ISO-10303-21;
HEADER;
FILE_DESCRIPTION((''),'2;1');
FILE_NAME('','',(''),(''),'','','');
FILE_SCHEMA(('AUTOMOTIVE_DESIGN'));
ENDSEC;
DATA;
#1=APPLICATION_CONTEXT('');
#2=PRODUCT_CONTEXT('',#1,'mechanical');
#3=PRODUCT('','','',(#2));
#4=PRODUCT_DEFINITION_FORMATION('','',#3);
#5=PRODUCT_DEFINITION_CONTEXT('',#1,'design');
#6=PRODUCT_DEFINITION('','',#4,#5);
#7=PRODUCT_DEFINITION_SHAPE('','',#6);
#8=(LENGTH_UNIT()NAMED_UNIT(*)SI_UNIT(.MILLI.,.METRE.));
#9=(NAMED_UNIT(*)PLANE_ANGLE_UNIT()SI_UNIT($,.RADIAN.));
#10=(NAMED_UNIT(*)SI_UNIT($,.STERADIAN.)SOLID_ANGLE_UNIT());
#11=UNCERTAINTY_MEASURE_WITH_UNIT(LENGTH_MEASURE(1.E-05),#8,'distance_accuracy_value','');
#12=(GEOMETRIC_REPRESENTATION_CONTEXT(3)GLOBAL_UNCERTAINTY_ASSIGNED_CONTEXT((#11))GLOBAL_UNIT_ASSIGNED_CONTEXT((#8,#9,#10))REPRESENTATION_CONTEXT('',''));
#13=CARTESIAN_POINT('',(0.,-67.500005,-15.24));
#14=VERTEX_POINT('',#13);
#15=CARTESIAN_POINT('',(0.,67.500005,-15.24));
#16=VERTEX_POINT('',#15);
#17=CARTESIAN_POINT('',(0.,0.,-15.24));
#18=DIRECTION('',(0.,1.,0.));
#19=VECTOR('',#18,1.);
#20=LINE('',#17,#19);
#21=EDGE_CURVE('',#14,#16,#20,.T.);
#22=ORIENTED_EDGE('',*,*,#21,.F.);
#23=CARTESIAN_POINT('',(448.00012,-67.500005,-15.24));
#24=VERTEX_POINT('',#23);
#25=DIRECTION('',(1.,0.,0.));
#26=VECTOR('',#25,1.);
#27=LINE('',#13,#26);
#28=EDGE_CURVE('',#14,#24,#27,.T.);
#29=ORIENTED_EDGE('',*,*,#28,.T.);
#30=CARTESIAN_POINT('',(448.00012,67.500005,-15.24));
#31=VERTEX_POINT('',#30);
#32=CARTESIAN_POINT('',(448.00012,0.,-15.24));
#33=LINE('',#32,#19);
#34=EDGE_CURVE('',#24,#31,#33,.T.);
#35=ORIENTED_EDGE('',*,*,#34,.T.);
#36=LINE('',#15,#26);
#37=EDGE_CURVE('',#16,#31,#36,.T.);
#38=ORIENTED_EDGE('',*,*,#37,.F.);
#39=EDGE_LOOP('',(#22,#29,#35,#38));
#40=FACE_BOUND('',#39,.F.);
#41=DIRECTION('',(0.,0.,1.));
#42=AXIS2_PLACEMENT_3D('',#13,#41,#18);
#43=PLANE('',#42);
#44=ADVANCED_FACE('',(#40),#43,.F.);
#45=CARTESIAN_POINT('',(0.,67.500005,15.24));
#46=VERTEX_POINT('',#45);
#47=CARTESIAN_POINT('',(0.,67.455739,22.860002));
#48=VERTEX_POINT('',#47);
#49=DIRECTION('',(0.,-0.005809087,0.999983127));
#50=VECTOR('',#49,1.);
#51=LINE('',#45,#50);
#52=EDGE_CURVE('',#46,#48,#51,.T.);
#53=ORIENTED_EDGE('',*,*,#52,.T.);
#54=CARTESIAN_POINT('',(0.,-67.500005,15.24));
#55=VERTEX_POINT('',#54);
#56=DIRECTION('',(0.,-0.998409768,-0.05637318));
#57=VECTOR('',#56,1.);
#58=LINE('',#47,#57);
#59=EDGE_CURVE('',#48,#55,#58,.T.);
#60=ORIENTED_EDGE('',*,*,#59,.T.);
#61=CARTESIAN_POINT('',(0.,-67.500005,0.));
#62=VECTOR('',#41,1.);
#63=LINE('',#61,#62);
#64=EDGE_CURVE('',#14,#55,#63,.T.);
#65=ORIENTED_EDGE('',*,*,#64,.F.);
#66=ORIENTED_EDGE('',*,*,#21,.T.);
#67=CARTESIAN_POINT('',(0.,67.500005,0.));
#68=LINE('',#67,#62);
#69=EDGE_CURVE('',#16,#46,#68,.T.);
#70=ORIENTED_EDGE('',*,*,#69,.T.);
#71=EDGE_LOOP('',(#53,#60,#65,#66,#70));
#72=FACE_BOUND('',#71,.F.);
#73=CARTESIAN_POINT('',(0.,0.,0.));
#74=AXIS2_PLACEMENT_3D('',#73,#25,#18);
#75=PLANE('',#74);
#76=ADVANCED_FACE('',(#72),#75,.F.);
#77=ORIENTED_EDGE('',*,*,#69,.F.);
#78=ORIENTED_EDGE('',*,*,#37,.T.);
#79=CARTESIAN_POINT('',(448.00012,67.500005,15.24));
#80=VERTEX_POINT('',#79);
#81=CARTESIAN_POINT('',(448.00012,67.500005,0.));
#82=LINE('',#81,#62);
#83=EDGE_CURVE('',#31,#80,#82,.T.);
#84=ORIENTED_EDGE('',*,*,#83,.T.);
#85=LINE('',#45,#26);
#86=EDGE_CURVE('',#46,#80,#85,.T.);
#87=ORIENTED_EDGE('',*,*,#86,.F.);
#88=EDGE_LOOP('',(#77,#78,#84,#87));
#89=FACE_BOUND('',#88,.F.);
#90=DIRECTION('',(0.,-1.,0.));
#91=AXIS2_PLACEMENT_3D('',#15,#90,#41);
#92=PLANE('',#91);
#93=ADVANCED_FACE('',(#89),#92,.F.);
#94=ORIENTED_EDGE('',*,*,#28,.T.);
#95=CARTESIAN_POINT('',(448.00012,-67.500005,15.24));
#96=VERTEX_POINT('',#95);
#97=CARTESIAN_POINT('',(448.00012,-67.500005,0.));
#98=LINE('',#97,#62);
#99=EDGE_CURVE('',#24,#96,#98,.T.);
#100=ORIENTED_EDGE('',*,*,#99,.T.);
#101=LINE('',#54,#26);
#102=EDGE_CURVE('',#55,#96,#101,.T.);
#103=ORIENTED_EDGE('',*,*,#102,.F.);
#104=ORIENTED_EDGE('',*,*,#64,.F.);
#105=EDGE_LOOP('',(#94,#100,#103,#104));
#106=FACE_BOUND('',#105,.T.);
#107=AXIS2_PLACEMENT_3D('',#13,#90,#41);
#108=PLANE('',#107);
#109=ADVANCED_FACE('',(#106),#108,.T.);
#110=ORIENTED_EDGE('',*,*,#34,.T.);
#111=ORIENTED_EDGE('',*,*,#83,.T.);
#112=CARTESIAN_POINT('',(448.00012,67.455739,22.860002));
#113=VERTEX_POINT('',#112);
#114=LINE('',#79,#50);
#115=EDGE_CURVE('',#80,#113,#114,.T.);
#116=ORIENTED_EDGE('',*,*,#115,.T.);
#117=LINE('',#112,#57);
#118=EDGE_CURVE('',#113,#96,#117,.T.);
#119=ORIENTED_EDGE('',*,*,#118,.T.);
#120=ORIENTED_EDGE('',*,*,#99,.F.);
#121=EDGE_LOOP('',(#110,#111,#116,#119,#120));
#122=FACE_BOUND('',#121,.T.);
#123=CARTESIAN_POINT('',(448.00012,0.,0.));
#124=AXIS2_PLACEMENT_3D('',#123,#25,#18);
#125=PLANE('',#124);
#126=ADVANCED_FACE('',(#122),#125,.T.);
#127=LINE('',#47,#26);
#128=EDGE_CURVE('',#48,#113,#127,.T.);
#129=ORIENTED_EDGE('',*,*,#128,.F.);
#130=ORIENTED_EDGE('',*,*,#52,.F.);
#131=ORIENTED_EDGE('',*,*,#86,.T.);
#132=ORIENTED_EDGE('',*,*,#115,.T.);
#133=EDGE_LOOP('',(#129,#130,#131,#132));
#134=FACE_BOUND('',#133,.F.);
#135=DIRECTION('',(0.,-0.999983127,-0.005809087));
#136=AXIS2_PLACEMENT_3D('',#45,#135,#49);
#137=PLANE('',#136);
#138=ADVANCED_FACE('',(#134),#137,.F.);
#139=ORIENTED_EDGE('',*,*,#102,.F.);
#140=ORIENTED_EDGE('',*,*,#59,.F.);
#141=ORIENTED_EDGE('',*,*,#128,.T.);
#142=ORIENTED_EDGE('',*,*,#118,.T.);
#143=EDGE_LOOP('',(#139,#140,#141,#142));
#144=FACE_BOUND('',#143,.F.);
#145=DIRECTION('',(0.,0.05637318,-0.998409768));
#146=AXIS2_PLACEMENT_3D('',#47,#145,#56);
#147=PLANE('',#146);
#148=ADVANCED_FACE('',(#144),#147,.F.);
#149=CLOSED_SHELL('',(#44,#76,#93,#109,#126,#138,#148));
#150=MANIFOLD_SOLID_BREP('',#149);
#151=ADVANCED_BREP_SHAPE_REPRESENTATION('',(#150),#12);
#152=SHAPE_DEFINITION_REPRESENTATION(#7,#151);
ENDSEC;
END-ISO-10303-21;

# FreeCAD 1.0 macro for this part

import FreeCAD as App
import Part
import Sketcher
Q = App.Units.Quantity


def add_polygon(sketch, points):
    """Adds a closed chain of lines whose ends are joined by coincident constraints."""
    first, n = sketch.GeometryCount, len(points)
    for a, b in zip(points, points[1:] + points[:1]):
        sketch.addGeometry(Part.LineSegment(App.Vector(*a, 0), App.Vector(*b, 0)), False)
    for i in range(n):
        sketch.addConstraint(Sketcher.Constraint("Coincident", first + i, 2, first + (i + 1) % n, 1))

doc = App.newDocument("Part")
body = doc.addObject("PartDesign::Body", "Body")

# Sketch on YZ plane
sketch1 = body.newObject("Sketcher::SketchObject", "Sketch")
sketch1.AttachmentSupport = (doc.getObject("YZ_Plane"), [""])
sketch1.MapMode = "FlatFace"
add_polygon(sketch1, [(-68, 15), (-68, -15), (68, -15), (68, 15), (67, 23)])  # lines 0-4
sketch1.addConstraint([
    Sketcher.Constraint("Vertical", 0),
    Sketcher.Constraint("Horizontal", 1),
    Sketcher.Constraint("Vertical", 2),
    Sketcher.Constraint("Symmetric", 0, 2, 2, 2, -1, 1),
    Sketcher.Constraint("Horizontal", 2, 2, 4, 2),
    Sketcher.Constraint("DistanceY", 0, 2, 0, 1, Q("1.2 in")),
    Sketcher.Constraint("DistanceY", -1, 1, 3, 2, Q("0.9000001 in")),
    Sketcher.Constraint("DistanceX", 1, 1, 1, 2, Q("135.00001 mm")),
    Sketcher.Constraint("Distance", 3, Q("7.620131 mm")),
])
pad1 = body.newObject("PartDesign::Pad", "Pad")
pad1.Profile = sketch1
pad1.Length = Q("17.6378 in")

doc.recompute()
